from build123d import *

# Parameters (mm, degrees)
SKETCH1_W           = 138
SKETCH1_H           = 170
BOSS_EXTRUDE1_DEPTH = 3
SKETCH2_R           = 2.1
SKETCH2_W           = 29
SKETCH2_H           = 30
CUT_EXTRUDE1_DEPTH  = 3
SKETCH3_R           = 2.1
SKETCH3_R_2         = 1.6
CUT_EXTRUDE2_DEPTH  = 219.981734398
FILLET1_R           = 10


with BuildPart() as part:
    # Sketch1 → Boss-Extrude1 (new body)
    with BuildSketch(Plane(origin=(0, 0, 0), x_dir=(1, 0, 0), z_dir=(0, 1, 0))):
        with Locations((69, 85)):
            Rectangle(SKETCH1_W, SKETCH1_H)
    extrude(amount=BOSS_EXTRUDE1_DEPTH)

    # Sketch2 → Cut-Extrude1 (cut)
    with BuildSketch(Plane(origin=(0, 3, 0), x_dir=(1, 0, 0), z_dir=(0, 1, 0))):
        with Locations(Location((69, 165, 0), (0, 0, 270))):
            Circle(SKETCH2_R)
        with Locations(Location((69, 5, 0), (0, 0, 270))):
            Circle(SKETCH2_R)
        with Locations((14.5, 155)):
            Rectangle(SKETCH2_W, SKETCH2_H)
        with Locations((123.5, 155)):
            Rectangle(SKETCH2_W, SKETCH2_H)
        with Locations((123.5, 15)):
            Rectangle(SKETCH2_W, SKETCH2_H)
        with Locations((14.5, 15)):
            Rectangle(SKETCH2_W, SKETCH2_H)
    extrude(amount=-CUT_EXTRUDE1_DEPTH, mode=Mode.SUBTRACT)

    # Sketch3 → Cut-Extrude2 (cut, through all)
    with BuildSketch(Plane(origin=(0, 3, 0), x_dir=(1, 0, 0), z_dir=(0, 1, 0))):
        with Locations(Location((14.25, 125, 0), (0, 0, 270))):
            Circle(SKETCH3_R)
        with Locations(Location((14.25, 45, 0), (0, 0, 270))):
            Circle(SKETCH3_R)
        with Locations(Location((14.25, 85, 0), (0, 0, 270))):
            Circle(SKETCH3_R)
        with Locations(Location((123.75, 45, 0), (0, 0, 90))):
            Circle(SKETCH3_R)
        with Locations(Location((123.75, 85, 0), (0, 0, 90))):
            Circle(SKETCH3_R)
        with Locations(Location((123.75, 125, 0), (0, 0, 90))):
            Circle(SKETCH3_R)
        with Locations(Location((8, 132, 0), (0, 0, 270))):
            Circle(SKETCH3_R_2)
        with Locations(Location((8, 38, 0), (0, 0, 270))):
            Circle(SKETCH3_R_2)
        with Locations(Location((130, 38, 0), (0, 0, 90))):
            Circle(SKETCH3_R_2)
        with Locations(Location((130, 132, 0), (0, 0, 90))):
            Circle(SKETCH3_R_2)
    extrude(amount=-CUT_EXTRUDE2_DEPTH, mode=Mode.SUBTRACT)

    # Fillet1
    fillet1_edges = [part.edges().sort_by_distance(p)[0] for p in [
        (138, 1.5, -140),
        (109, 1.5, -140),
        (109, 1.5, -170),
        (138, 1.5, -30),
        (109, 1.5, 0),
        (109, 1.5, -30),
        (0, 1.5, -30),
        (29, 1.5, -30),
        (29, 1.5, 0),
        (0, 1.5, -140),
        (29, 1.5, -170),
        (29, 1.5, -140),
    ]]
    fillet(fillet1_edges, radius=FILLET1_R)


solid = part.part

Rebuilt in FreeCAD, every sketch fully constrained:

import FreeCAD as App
import Part
import Sketcher

V = App.Vector


def edges_at(feature, points):
    """Names of the edges that pass closest to the given points."""
    edges = feature.Shape.Edges
    near = lambda p: min(range(len(edges)), key=lambda i: edges[i].distToShape(Part.Vertex(*p))[0])
    return sorted({f"Edge{near(p) + 1}" for p in points})


def add_polygon(sketch, points):
    """Adds a closed chain of lines whose ends are joined by coincident constraints."""
    first, n = sketch.GeometryCount, len(points)
    for a, b in zip(points, points[1:] + points[:1]):
        sketch.addGeometry(Part.LineSegment(App.Vector(*a, 0), App.Vector(*b, 0)), False)
    for i in range(n):
        sketch.addConstraint(Sketcher.Constraint("Coincident", first + i, 2, first + (i + 1) % n, 1))

doc = App.newDocument("Part")
body = doc.addObject("PartDesign::Body", "Body")

# Sketch on XZ plane
sketch1 = body.newObject("Sketcher::SketchObject", "Sketch")
sketch1.AttachmentSupport = (doc.getObject("XZ_Plane"), [""])
sketch1.MapMode = "FlatFace"
add_polygon(sketch1, [(0, -170), (0, 0), (138, 0), (138, -170)])  # lines 0-3
sketch1.addConstraint([
    Sketcher.Constraint("Vertical", 0),
    Sketcher.Constraint("Horizontal", 1),
    Sketcher.Constraint("Vertical", 2),
    Sketcher.Constraint("Horizontal", 3),
    Sketcher.Constraint("Coincident", 0, 2, -1, 1),
    Sketcher.Constraint("DistanceX", 1, 1, 1, 2, 138.0),
    Sketcher.Constraint("DistanceY", 0, 1, 0, 2, 170.0),
])
pad1 = body.newObject("PartDesign::Pad", "Pad")
pad1.Profile = sketch1
pad1.Length = 3
pad1.Reversed = True

# Sketch on XZ plane
sketch2 = body.newObject("Sketcher::SketchObject", "Sketch001")
sketch2.AttachmentSupport = (doc.getObject("XZ_Plane"), [""])
sketch2.MapMode = "FlatFace"
sketch2.AttachmentOffset = App.Placement(V(0, 0, -3), App.Rotation())
sketch2.addGeometry(Part.Circle(V(69, -165, 0), V(0, 0, 1), 2.1), False)  # 0
sketch2.addGeometry(Part.Circle(V(69, -5, 0), V(0, 0, 1), 2.1), False)  # 1
add_polygon(sketch2, [(0, -170), (0, -140), (29, -140), (29, -170)])  # lines 2-5
add_polygon(sketch2, [(109, -170), (109, -140), (138, -140), (138, -170)])  # lines 6-9
add_polygon(sketch2, [(109, -30), (109, 0), (138, 0), (138, -30)])  # lines 10-13
add_polygon(sketch2, [(0, -30), (0, 0), (29, 0), (29, -30)])  # lines 14-17
sketch2.addConstraint([
    Sketcher.Constraint("Vertical", 2),
    Sketcher.Constraint("Horizontal", 3),
    Sketcher.Constraint("Vertical", 4),
    Sketcher.Constraint("Horizontal", 5),
    Sketcher.Constraint("Vertical", 6),
    Sketcher.Constraint("Horizontal", 7),
    Sketcher.Constraint("Vertical", 8),
    Sketcher.Constraint("Horizontal", 9),
    Sketcher.Constraint("Vertical", 10),
    Sketcher.Constraint("Horizontal", 11),
    Sketcher.Constraint("Vertical", 12),
    Sketcher.Constraint("Horizontal", 13),
    Sketcher.Constraint("Vertical", 14),
    Sketcher.Constraint("Horizontal", 15),
    Sketcher.Constraint("Vertical", 16),
    Sketcher.Constraint("Horizontal", 17),
    Sketcher.Constraint("Coincident", 14, 2, -1, 1),
    Sketcher.Constraint("Equal", 0, 1),
    Sketcher.Constraint("PointOnObject", 2, 2, -2),
    Sketcher.Constraint("PointOnObject", 10, 2, -1),
    Sketcher.Constraint("Horizontal", 3, 2, 6, 2),
    Sketcher.Constraint("Horizontal", 5, 2, 8, 2),
    Sketcher.Constraint("Horizontal", 13, 2, 16, 2),
    Sketcher.Constraint("Vertical", 0, 3, 1, 3),
    Sketcher.Constraint("Vertical", 9, 2, 10, 2),
    Sketcher.Constraint("Vertical", 8, 2, 11, 2),
    Sketcher.Constraint("Vertical", 4, 2, 15, 2),
    Sketcher.Constraint("Equal", 5, 7),
    Sketcher.Constraint("Equal", 8, 10),
    Sketcher.Constraint("Diameter", 0, 4.2),
    Sketcher.Constraint("DistanceX", 3, 1, 3, 2, 29.0),
    Sketcher.Constraint("DistanceY", 2, 1, 2, 2, 30.0),
    Sketcher.Constraint("DistanceX", -1, 1, 0, 3, 69.0),
    Sketcher.Constraint("DistanceY", 0, 3, -1, 1, 165.0),
    Sketcher.Constraint("DistanceY", 1, 3, -1, 1, 5.0),
    Sketcher.Constraint("DistanceY", 2, 2, -1, 1, 140.0),
    Sketcher.Constraint("DistanceX", -1, 1, 6, 2, 109.0),
])
pocket1 = body.newObject("PartDesign::Pocket", "Pocket")
pocket1.Profile = sketch2
pocket1.Length = 3
pocket1.Reversed = True

# Sketch on XZ plane
sketch3 = body.newObject("Sketcher::SketchObject", "Sketch002")
sketch3.AttachmentSupport = (doc.getObject("XZ_Plane"), [""])
sketch3.MapMode = "FlatFace"
sketch3.AttachmentOffset = App.Placement(V(0, 0, -3), App.Rotation())
sketch3.addGeometry([
    Part.Circle(V(14.2, -125, 0), V(0, 0, 1), 2.1),  # 0
    Part.Circle(V(14.2, -45, 0), V(0, 0, 1), 2.1),  # 1
    Part.Circle(V(14.2, -85, 0), V(0, 0, 1), 2.1),  # 2
    Part.Circle(V(123.8, -45, 0), V(0, 0, 1), 2.1),  # 3
    Part.Circle(V(123.8, -85, 0), V(0, 0, 1), 2.1),  # 4
    Part.Circle(V(123.8, -125, 0), V(0, 0, 1), 2.1),  # 5
    Part.Circle(V(8, -132, 0), V(0, 0, 1), 1.6),  # 6
    Part.Circle(V(8, -38, 0), V(0, 0, 1), 1.6),  # 7
    Part.Circle(V(130, -38, 0), V(0, 0, 1), 1.6),  # 8
    Part.Circle(V(130, -132, 0), V(0, 0, 1), 1.6),  # 9
], False)
sketch3.addConstraint([
    Sketcher.Constraint("Equal", 0, 1),
    Sketcher.Constraint("Equal", 1, 2),
    Sketcher.Constraint("Equal", 2, 3),
    Sketcher.Constraint("Equal", 3, 4),
    Sketcher.Constraint("Equal", 4, 5),
    Sketcher.Constraint("Equal", 6, 7),
    Sketcher.Constraint("Equal", 7, 8),
    Sketcher.Constraint("Equal", 8, 9),
    Sketcher.Constraint("Horizontal", 1, 3, 3, 3),
    Sketcher.Constraint("Horizontal", 2, 3, 4, 3),
    Sketcher.Constraint("Horizontal", 0, 3, 5, 3),
    Sketcher.Constraint("Horizontal", 7, 3, 8, 3),
    Sketcher.Constraint("Horizontal", 6, 3, 9, 3),
    Sketcher.Constraint("Vertical", 0, 3, 1, 3),
    Sketcher.Constraint("Vertical", 1, 3, 2, 3),
    Sketcher.Constraint("Vertical", 3, 3, 4, 3),
    Sketcher.Constraint("Vertical", 4, 3, 5, 3),
    Sketcher.Constraint("Vertical", 6, 3, 7, 3),
    Sketcher.Constraint("Vertical", 8, 3, 9, 3),
    Sketcher.Constraint("Diameter", 0, 4.2),
    Sketcher.Constraint("Diameter", 6, 3.2),
    Sketcher.Constraint("DistanceY", 0, 3, -1, 1, 125.0),
    Sketcher.Constraint("DistanceY", 1, 3, -1, 1, 45.0),
    Sketcher.Constraint("DistanceY", 2, 3, -1, 1, 85.0),
    Sketcher.Constraint("DistanceX", -1, 1, 6, 3, 8.0),
    Sketcher.Constraint("DistanceY", 6, 3, -1, 1, 132.0),
    Sketcher.Constraint("DistanceY", 7, 3, -1, 1, 38.0),
    Sketcher.Constraint("DistanceX", -1, 1, 8, 3, 130.0),
    Sketcher.Constraint("DistanceX", 1, 3, 3, 3, 109.5),
    Sketcher.Constraint("DistanceX", -1, 1, 0, 3, 14.25),
])
pocket2 = body.newObject("PartDesign::Pocket", "Pocket001")
pocket2.Profile = sketch3
pocket2.Type = "ThroughAll"
pocket2.Reversed = True
doc.recompute()

fillet = body.newObject("PartDesign::Fillet", "Fillet")
fillet.Base = (pocket2, edges_at(pocket2, [
    (138, 1.5, -140),
    (109, 1.5, -140),
    (109, 1.5, -170),
    (138, 1.5, -30),
    (109, 1.5, 0),
    (109, 1.5, -30),
    (0, 1.5, -30),
    (29, 1.5, -30),
    (29, 1.5, 0),
    (0, 1.5, -140),
    (29, 1.5, -170),
    (29, 1.5, -140),
]))
fillet.Radius = 10

doc.recompute()
